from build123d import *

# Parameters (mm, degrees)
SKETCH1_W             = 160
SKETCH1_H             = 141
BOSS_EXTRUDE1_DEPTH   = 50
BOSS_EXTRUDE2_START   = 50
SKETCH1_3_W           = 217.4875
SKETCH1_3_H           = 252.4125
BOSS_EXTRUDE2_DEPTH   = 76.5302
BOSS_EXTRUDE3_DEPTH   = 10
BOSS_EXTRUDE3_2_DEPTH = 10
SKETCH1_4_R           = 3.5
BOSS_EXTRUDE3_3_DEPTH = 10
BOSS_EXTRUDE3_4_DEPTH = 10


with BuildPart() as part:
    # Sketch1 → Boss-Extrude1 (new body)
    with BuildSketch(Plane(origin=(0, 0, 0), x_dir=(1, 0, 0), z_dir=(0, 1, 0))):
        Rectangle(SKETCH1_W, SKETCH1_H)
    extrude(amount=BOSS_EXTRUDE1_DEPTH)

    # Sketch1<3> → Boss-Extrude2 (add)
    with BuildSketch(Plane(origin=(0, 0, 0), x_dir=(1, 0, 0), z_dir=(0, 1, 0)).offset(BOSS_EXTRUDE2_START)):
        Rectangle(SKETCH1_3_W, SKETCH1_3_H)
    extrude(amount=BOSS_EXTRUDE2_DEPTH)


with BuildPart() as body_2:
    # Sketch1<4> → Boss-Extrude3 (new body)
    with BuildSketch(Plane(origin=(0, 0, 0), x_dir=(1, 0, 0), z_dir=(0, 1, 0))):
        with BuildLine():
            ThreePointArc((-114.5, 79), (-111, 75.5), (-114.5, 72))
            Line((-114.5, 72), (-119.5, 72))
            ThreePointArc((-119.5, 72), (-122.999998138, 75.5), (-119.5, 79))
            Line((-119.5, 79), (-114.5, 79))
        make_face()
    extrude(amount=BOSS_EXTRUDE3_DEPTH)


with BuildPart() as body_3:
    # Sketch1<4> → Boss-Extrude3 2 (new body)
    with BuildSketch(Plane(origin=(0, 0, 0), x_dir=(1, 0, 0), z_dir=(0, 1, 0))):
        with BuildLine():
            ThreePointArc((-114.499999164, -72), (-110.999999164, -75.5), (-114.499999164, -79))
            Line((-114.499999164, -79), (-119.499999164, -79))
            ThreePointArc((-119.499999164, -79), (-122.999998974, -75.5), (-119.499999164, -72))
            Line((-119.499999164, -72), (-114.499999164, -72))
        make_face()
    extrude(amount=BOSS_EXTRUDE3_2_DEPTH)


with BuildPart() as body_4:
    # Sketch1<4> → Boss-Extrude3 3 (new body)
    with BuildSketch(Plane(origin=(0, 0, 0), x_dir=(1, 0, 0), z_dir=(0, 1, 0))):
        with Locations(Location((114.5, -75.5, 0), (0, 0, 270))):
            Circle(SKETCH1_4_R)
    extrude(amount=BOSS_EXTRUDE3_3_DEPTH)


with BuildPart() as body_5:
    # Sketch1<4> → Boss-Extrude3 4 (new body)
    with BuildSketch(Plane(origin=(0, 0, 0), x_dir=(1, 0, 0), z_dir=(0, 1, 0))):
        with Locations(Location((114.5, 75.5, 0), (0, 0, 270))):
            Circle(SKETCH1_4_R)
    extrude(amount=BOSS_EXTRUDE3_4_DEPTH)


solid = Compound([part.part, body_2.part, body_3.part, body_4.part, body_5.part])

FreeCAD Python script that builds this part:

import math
import FreeCAD as App
import Part
import Sketcher

doc = App.newDocument("Part")
body = doc.addObject("PartDesign::Body", "Body")

sketch1 = doc.addObject("Sketcher::SketchObject", "Sketch")
body.addObject(sketch1)
sketch1.AttachmentSupport = (doc.XZ_Plane, [""])
sketch1.MapMode = "FlatFace"
sketch1.addGeometry(Part.LineSegment(App.Vector(-80, -70.5, 0), App.Vector(-80, 70.5, 0)), False)
sketch1.addGeometry(Part.LineSegment(App.Vector(-80, 70.5, 0), App.Vector(80, 70.5, 0)), False)
sketch1.addGeometry(Part.LineSegment(App.Vector(80, 70.5, 0), App.Vector(80, -70.5, 0)), False)
sketch1.addGeometry(Part.LineSegment(App.Vector(80, -70.5, 0), App.Vector(-80, -70.5, 0)), False)
sketch1.addConstraint(Sketcher.Constraint("Coincident", 0, 2, 1, 1))
sketch1.addConstraint(Sketcher.Constraint("Coincident", 1, 2, 2, 1))
sketch1.addConstraint(Sketcher.Constraint("Coincident", 2, 2, 3, 1))
sketch1.addConstraint(Sketcher.Constraint("Coincident", 3, 2, 0, 1))
sketch1.addConstraint(Sketcher.Constraint("Vertical", 0))
sketch1.addConstraint(Sketcher.Constraint("Horizontal", 1))
sketch1.addConstraint(Sketcher.Constraint("Vertical", 2))
sketch1.addConstraint(Sketcher.Constraint("Horizontal", 3))
sketch1.addConstraint(Sketcher.Constraint("Symmetric", 0, 2, 2, 2, -1, 1))
sketch1.addConstraint(Sketcher.Constraint("DistanceX", 1, 1, 1, 2, 160.0))
sketch1.addConstraint(Sketcher.Constraint("DistanceY", 0, 1, 0, 2, 141.0))
pad1 = doc.addObject("PartDesign::Pad", "Pad")
body.addObject(pad1)
pad1.Profile = sketch1
pad1.Length = 50
pad1.Reversed = True

sketch2 = doc.addObject("Sketcher::SketchObject", "Sketch001")
body.addObject(sketch2)
sketch2.AttachmentSupport = (doc.XZ_Plane, [""])
sketch2.MapMode = "FlatFace"
sketch2.AttachmentOffset = App.Placement(App.Vector(0, 0, -50), App.Rotation())
sketch2.addGeometry(Part.LineSegment(App.Vector(-108.74375, -126.20625, 0), App.Vector(-108.74375, 126.20625, 0)), False)
sketch2.addGeometry(Part.LineSegment(App.Vector(-108.74375, 126.20625, 0), App.Vector(108.74375, 126.20625, 0)), False)
sketch2.addGeometry(Part.LineSegment(App.Vector(108.74375, 126.20625, 0), App.Vector(108.74375, -126.20625, 0)), False)
sketch2.addGeometry(Part.LineSegment(App.Vector(108.74375, -126.20625, 0), App.Vector(-108.74375, -126.20625, 0)), False)
sketch2.addConstraint(Sketcher.Constraint("Coincident", 0, 2, 1, 1))
sketch2.addConstraint(Sketcher.Constraint("Coincident", 1, 2, 2, 1))
sketch2.addConstraint(Sketcher.Constraint("Coincident", 2, 2, 3, 1))
sketch2.addConstraint(Sketcher.Constraint("Coincident", 3, 2, 0, 1))
sketch2.addConstraint(Sketcher.Constraint("Vertical", 0))
sketch2.addConstraint(Sketcher.Constraint("Horizontal", 1))
sketch2.addConstraint(Sketcher.Constraint("Vertical", 2))
sketch2.addConstraint(Sketcher.Constraint("Horizontal", 3))
sketch2.addConstraint(Sketcher.Constraint("Symmetric", 0, 2, 2, 2, -1, 1))
sketch2.addConstraint(Sketcher.Constraint("DistanceX", 1, 1, 1, 2, 217.4875))
sketch2.addConstraint(Sketcher.Constraint("DistanceY", 0, 1, 0, 2, 252.4125))
pad2 = doc.addObject("PartDesign::Pad", "Pad001")
body.addObject(pad2)
pad2.Profile = sketch2
pad2.Length = 76.5302
pad2.Reversed = True
body2 = doc.addObject("PartDesign::Body", "Body001")

sketch3 = doc.addObject("Sketcher::SketchObject", "Sketch002")
body2.addObject(sketch3)
sketch3.AttachmentSupport = (doc.getObject("XZ_Plane001"), [""])
sketch3.MapMode = "FlatFace"
sketch3.addGeometry(Part.ArcOfCircle(Part.Circle(App.Vector(-114.5, -75.5, 0), App.Vector(0, 0, 1), 3.5), math.radians(-90), math.radians(90)), False)
sketch3.addGeometry(Part.LineSegment(App.Vector(-114.5, -79, 0), App.Vector(-119.5, -79, 0)), False)
sketch3.addGeometry(Part.ArcOfCircle(Part.Circle(App.Vector(-119.499998, -75.5, 0), App.Vector(0, 0, 1), 3.5), math.radians(90.00003), math.radians(269.99997)), False)
sketch3.addGeometry(Part.LineSegment(App.Vector(-119.5, -72, 0), App.Vector(-114.5, -72, 0)), False)
sketch3.addConstraint(Sketcher.Constraint("Tangent", 0, 1, 1, 1))
sketch3.addConstraint(Sketcher.Constraint("Tangent", 1, 2, 2, 2))
sketch3.addConstraint(Sketcher.Constraint("Tangent", 2, 1, 3, 1))
sketch3.addConstraint(Sketcher.Constraint("Tangent", 3, 2, 0, 2))
sketch3.addConstraint(Sketcher.Constraint("Horizontal", 1))
sketch3.addConstraint(Sketcher.Constraint("Horizontal", 3))
sketch3.addConstraint(Sketcher.Constraint("Radius", 0, 3.5))
sketch3.addConstraint(Sketcher.Constraint("DistanceX", 1, 2, 1, 1, 5.0))
sketch3.addConstraint(Sketcher.Constraint("DistanceY", 0, 1, -1, 1, 79.0))
sketch3.addConstraint(Sketcher.Constraint("DistanceX", 0, 3, -1, 1, 114.5))
pad3 = doc.addObject("PartDesign::Pad", "Pad002")
body2.addObject(pad3)
pad3.Profile = sketch3
pad3.Length = 10
pad3.Reversed = True
body3 = doc.addObject("PartDesign::Body", "Body002")

sketch4 = doc.addObject("Sketcher::SketchObject", "Sketch003")
body3.addObject(sketch4)
sketch4.AttachmentSupport = (doc.getObject("XZ_Plane002"), [""])
sketch4.MapMode = "FlatFace"
sketch4.addGeometry(Part.ArcOfCircle(Part.Circle(App.Vector(-114.499999, 75.5, 0), App.Vector(0, 0, 1), 3.5), math.radians(-90), math.radians(90)), False)
sketch4.addGeometry(Part.LineSegment(App.Vector(-114.499999, 72, 0), App.Vector(-119.499999, 72, 0)), False)
sketch4.addGeometry(Part.ArcOfCircle(Part.Circle(App.Vector(-119.499999, 75.5, 0), App.Vector(0, 0, 1), 3.5), math.radians(90.000003), math.radians(269.999997)), False)
sketch4.addGeometry(Part.LineSegment(App.Vector(-119.499999, 79, 0), App.Vector(-114.499999, 79, 0)), False)
sketch4.addConstraint(Sketcher.Constraint("Tangent", 0, 1, 1, 1))
sketch4.addConstraint(Sketcher.Constraint("Tangent", 1, 2, 2, 2))
sketch4.addConstraint(Sketcher.Constraint("Tangent", 2, 1, 3, 1))
sketch4.addConstraint(Sketcher.Constraint("Tangent", 3, 2, 0, 2))
sketch4.addConstraint(Sketcher.Constraint("Horizontal", 1))
sketch4.addConstraint(Sketcher.Constraint("Horizontal", 3))
sketch4.addConstraint(Sketcher.Constraint("Radius", 0, 3.5))
sketch4.addConstraint(Sketcher.Constraint("DistanceX", 1, 2, 1, 1, 5.0))
sketch4.addConstraint(Sketcher.Constraint("DistanceY", -1, 1, 0, 1, 72.0))
sketch4.addConstraint(Sketcher.Constraint("DistanceX", 0, 3, -1, 1, 114.499999))
pad4 = doc.addObject("PartDesign::Pad", "Pad003")
body3.addObject(pad4)
pad4.Profile = sketch4
pad4.Length = 10
pad4.Reversed = True
body4 = doc.addObject("PartDesign::Body", "Body003")

sketch5 = doc.addObject("Sketcher::SketchObject", "Sketch004")
body4.addObject(sketch5)
sketch5.AttachmentSupport = (doc.getObject("XZ_Plane003"), [""])
sketch5.MapMode = "FlatFace"
sketch5.addGeometry(Part.Circle(App.Vector(114.5, 75.5, 0), App.Vector(0, 0, 1), 3.5), False)
sketch5.addConstraint(Sketcher.Constraint("Diameter", 0, 7.0))
sketch5.addConstraint(Sketcher.Constraint("DistanceX", -1, 1, 0, 3, 114.5))
sketch5.addConstraint(Sketcher.Constraint("DistanceY", -1, 1, 0, 3, 75.5))
pad5 = doc.addObject("PartDesign::Pad", "Pad004")
body4.addObject(pad5)
pad5.Profile = sketch5
pad5.Length = 10
pad5.Reversed = True
body5 = doc.addObject("PartDesign::Body", "Body004")

sketch6 = doc.addObject("Sketcher::SketchObject", "Sketch005")
body5.addObject(sketch6)
sketch6.AttachmentSupport = (doc.getObject("XZ_Plane004"), [""])
sketch6.MapMode = "FlatFace"
sketch6.addGeometry(Part.Circle(App.Vector(114.5, -75.5, 0), App.Vector(0, 0, 1), 3.5), False)
sketch6.addConstraint(Sketcher.Constraint("Diameter", 0, 7.0))
sketch6.addConstraint(Sketcher.Constraint("DistanceX", -1, 1, 0, 3, 114.5))
sketch6.addConstraint(Sketcher.Constraint("DistanceY", 0, 3, -1, 1, 75.5))
pad6 = doc.addObject("PartDesign::Pad", "Pad005")
body5.addObject(pad6)
pad6.Profile = sketch6
pad6.Length = 10
pad6.Reversed = True

doc.recompute()
